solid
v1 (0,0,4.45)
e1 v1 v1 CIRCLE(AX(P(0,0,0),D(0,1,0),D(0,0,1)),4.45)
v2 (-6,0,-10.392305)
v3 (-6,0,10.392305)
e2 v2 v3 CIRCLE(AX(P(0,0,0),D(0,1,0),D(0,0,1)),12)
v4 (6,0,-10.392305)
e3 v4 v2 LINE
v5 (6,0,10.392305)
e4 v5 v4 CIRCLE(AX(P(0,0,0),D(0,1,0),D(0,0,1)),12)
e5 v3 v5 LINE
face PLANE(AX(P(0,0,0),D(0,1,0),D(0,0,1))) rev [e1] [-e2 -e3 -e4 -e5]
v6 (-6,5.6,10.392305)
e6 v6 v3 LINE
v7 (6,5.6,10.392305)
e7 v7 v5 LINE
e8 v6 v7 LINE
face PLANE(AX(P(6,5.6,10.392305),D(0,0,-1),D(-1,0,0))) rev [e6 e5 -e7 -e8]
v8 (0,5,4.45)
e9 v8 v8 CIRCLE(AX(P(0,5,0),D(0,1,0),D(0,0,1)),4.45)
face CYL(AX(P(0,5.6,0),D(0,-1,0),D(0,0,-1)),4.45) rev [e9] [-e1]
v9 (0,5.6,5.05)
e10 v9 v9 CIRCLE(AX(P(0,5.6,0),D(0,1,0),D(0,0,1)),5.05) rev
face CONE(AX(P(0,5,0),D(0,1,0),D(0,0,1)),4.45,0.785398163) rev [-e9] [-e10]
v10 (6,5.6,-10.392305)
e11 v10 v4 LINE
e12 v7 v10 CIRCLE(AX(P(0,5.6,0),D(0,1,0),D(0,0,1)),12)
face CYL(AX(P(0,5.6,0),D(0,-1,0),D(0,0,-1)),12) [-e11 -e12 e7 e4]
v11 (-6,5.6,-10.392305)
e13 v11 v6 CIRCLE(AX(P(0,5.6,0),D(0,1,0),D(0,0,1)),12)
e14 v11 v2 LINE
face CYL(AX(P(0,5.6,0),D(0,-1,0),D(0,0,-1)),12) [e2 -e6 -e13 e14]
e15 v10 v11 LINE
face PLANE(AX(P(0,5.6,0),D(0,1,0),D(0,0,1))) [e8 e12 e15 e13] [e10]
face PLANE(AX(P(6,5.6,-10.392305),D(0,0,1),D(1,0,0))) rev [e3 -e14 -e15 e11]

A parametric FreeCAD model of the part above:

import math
import FreeCAD as App
import Part
import Sketcher


def edges_at(feature, points):
    """Names of the edges that pass closest to the given points."""
    edges = feature.Shape.Edges
    near = lambda p: min(range(len(edges)), key=lambda i: edges[i].distToShape(Part.Vertex(*p))[0])
    return sorted({f"Edge{near(p) + 1}" for p in points})

doc = App.newDocument("Part")
params = doc.addObject("Spreadsheet::Sheet", "Params")
for row, (alias, value) in enumerate([
    ("sketch1_radius", "12 mm"),
    ("sketch1_diameter", "8.9 mm"),
    ("sketch1_width", "12 mm"),
    ("pad1_length", "5.6 mm"),
    ("chamfer_size", "0.6 mm"),
], start=1):
    params.set(f"A{row}", alias)
    params.set(f"B{row}", "=" + value)
    params.setAlias(f"B{row}", alias)

body = doc.addObject("PartDesign::Body", "Body")

sketch1 = body.newObject("Sketcher::SketchObject", "Sketch")
sketch1.AttachmentSupport = (doc.getObject("XZ_Plane"), [""])
sketch1.MapMode = "FlatFace"
sketch1.addGeometry(Part.LineSegment(App.Vector(6, -10.392305, 0), App.Vector(-6, -10.392305, 0)), False)
sketch1.addGeometry(Part.ArcOfCircle(Part.Circle(App.Vector(0, 0, 0), App.Vector(0, 0, 1), 12), math.radians(120), math.radians(240)), False)
sketch1.addGeometry(Part.LineSegment(App.Vector(-6, 10.392305, 0), App.Vector(6, 10.392305, 0)), False)
sketch1.addGeometry(Part.ArcOfCircle(Part.Circle(App.Vector(0, 0, 0), App.Vector(0, 0, 1), 12), math.radians(-60), math.radians(60)), False)
sketch1.addGeometry(Part.Circle(App.Vector(0, 0, 0), App.Vector(0, 0, 1), 4.45), False)
sketch1.addConstraint(Sketcher.Constraint("Coincident", 0, 2, 1, 2))
sketch1.addConstraint(Sketcher.Constraint("Coincident", 1, 1, 2, 1))
sketch1.addConstraint(Sketcher.Constraint("Coincident", 2, 2, 3, 2))
sketch1.addConstraint(Sketcher.Constraint("Coincident", 3, 1, 0, 1))
sketch1.addConstraint(Sketcher.Constraint("Horizontal", 0))
sketch1.addConstraint(Sketcher.Constraint("Horizontal", 2))
sketch1.addConstraint(Sketcher.Constraint("Coincident", 1, 3, -1, 1))
sketch1.addConstraint(Sketcher.Constraint("Coincident", 3, 3, -1, 1))
sketch1.addConstraint(Sketcher.Constraint("Coincident", 4, 3, -1, 1))
sketch1.addConstraint(Sketcher.Constraint("Equal", 1, 3))
sketch1.addConstraint(Sketcher.Constraint("Vertical", 0, 2, 1, 1))
sketch1.addConstraint(Sketcher.Constraint("Radius", 1, 12.0))
sketch1.addConstraint(Sketcher.Constraint("Diameter", 4, 8.9))
sketch1.addConstraint(Sketcher.Constraint("DistanceX", 0, 2, 0, 1, 12.0))
sketch1.setExpression("Constraints[11]", "Params.sketch1_radius")
sketch1.setExpression("Constraints[12]", "Params.sketch1_diameter")
sketch1.setExpression("Constraints[13]", "Params.sketch1_width")
pad1 = body.newObject("PartDesign::Pad", "Pad")
pad1.Profile = sketch1
pad1.setExpression("Length", "Params.pad1_length")
pad1.Reversed = True
doc.recompute()

chamfer = body.newObject("PartDesign::Chamfer", "Chamfer")
chamfer.Base = (pad1, edges_at(pad1, [(-4.45, 5.6, 0)]))
chamfer.setExpression("Size", "Params.chamfer_size")

doc.recompute()
